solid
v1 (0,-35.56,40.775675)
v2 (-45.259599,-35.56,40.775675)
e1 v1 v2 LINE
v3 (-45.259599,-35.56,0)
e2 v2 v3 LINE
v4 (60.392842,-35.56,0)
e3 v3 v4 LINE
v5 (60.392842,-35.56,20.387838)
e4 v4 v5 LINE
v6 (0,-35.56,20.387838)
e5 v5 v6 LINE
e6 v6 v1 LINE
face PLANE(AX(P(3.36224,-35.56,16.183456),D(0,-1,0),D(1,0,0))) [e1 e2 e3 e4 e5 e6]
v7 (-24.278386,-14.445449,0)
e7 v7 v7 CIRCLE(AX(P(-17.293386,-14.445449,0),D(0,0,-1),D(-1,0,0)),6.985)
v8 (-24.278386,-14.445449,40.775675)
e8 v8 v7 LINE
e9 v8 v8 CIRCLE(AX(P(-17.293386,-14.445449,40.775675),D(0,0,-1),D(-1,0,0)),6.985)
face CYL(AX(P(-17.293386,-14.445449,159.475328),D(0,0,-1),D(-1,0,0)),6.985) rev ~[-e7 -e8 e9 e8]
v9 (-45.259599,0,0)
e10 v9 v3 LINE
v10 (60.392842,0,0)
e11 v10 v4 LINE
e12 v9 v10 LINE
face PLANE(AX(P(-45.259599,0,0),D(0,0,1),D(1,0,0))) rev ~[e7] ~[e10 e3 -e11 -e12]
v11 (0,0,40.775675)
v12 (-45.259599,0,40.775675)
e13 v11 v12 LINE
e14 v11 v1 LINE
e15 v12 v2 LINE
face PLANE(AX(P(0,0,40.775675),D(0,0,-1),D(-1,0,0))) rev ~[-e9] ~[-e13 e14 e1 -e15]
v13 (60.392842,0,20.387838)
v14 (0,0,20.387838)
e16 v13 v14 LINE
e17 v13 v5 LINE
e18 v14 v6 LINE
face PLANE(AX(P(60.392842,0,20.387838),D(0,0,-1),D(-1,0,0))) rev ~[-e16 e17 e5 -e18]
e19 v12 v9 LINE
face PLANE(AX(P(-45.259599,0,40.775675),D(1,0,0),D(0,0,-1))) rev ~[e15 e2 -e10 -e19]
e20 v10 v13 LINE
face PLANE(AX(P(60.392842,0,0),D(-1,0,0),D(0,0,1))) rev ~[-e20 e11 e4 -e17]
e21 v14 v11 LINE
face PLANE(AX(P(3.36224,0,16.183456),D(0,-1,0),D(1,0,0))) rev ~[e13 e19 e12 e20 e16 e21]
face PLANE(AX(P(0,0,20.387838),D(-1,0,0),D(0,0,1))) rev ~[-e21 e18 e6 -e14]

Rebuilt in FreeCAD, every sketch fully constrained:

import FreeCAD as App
import Part
import Sketcher
Q = App.Units.Quantity

doc = App.newDocument("Part")
body = doc.addObject("PartDesign::Body", "Body")

sketch1 = doc.addObject("Sketcher::SketchObject", "Sketch")
body.addObject(sketch1)
sketch1.AttachmentSupport = (doc.XZ_Plane, [""])
sketch1.MapMode = "FlatFace"
sketch1.addGeometry([
    Part.LineSegment(App.Vector(-45, 0, 0), App.Vector(60, 0, 0)),
    Part.LineSegment(App.Vector(60, 0, 0), App.Vector(60, 20, 0)),
    Part.LineSegment(App.Vector(60, 20, 0), App.Vector(0, 20, 0)),
    Part.LineSegment(App.Vector(0, 20, 0), App.Vector(0, 41, 0)),
    Part.LineSegment(App.Vector(0, 41, 0), App.Vector(-45, 41, 0)),
    Part.LineSegment(App.Vector(-45, 41, 0), App.Vector(-45, 0, 0)),
], False)
sketch1.addConstraint([
    Sketcher.Constraint("Coincident", 0, 2, 1, 1),
    Sketcher.Constraint("Coincident", 1, 2, 2, 1),
    Sketcher.Constraint("Coincident", 2, 2, 3, 1),
    Sketcher.Constraint("Coincident", 3, 2, 4, 1),
    Sketcher.Constraint("Coincident", 4, 2, 5, 1),
    Sketcher.Constraint("Coincident", 5, 2, 0, 1),
    Sketcher.Constraint("Horizontal", 0),
    Sketcher.Constraint("Vertical", 1),
    Sketcher.Constraint("Horizontal", 2),
    Sketcher.Constraint("Vertical", 3),
    Sketcher.Constraint("Horizontal", 4),
    Sketcher.Constraint("Vertical", 5),
    Sketcher.Constraint("PointOnObject", 0, 2, -1),
    Sketcher.Constraint("PointOnObject", 2, 2, -2),
    Sketcher.Constraint("Equal", 1, 3),
    Sketcher.Constraint("DistanceX", 4, 2, 4, 1, 45.259599),
    Sketcher.Constraint("DistanceX", 0, 1, 0, 2, 105.652441),
    Sketcher.Constraint("DistanceY", 1, 1, 1, 2, 20.387838),
])
pad1 = doc.addObject("PartDesign::Pad", "Pad")
body.addObject(pad1)
pad1.Profile = sketch1
pad1.Length = Q("1.4 in")

sketch2 = doc.addObject("Sketcher::SketchObject", "Sketch001")
body.addObject(sketch2)
sketch2.AttachmentSupport = (doc.XY_Plane, [""])
sketch2.MapMode = "FlatFace"
sketch2.AttachmentOffset = App.Placement(App.Vector(0, 0, 40.775675), App.Rotation())
sketch2.addGeometry(Part.Circle(App.Vector(-17, -14, 0), App.Vector(0, 0, 1), 7), False)
sketch2.addConstraint([
    Sketcher.Constraint("Diameter", 0, Q("0.55 in")),
    Sketcher.Constraint("DistanceY", 0, 3, -1, 1, 14.445449),
    Sketcher.Constraint("DistanceX", 0, 3, -1, 1, 17.293386),
])
doc.recompute()
hole = doc.addObject("PartDesign::Hole", "Hole")
body.addObject(hole)
hole.Profile = sketch2
hole.ThreadType = "None"
hole.Diameter = Q("0.55 in")
hole.DepthType = "ThroughAll"

doc.recompute()
